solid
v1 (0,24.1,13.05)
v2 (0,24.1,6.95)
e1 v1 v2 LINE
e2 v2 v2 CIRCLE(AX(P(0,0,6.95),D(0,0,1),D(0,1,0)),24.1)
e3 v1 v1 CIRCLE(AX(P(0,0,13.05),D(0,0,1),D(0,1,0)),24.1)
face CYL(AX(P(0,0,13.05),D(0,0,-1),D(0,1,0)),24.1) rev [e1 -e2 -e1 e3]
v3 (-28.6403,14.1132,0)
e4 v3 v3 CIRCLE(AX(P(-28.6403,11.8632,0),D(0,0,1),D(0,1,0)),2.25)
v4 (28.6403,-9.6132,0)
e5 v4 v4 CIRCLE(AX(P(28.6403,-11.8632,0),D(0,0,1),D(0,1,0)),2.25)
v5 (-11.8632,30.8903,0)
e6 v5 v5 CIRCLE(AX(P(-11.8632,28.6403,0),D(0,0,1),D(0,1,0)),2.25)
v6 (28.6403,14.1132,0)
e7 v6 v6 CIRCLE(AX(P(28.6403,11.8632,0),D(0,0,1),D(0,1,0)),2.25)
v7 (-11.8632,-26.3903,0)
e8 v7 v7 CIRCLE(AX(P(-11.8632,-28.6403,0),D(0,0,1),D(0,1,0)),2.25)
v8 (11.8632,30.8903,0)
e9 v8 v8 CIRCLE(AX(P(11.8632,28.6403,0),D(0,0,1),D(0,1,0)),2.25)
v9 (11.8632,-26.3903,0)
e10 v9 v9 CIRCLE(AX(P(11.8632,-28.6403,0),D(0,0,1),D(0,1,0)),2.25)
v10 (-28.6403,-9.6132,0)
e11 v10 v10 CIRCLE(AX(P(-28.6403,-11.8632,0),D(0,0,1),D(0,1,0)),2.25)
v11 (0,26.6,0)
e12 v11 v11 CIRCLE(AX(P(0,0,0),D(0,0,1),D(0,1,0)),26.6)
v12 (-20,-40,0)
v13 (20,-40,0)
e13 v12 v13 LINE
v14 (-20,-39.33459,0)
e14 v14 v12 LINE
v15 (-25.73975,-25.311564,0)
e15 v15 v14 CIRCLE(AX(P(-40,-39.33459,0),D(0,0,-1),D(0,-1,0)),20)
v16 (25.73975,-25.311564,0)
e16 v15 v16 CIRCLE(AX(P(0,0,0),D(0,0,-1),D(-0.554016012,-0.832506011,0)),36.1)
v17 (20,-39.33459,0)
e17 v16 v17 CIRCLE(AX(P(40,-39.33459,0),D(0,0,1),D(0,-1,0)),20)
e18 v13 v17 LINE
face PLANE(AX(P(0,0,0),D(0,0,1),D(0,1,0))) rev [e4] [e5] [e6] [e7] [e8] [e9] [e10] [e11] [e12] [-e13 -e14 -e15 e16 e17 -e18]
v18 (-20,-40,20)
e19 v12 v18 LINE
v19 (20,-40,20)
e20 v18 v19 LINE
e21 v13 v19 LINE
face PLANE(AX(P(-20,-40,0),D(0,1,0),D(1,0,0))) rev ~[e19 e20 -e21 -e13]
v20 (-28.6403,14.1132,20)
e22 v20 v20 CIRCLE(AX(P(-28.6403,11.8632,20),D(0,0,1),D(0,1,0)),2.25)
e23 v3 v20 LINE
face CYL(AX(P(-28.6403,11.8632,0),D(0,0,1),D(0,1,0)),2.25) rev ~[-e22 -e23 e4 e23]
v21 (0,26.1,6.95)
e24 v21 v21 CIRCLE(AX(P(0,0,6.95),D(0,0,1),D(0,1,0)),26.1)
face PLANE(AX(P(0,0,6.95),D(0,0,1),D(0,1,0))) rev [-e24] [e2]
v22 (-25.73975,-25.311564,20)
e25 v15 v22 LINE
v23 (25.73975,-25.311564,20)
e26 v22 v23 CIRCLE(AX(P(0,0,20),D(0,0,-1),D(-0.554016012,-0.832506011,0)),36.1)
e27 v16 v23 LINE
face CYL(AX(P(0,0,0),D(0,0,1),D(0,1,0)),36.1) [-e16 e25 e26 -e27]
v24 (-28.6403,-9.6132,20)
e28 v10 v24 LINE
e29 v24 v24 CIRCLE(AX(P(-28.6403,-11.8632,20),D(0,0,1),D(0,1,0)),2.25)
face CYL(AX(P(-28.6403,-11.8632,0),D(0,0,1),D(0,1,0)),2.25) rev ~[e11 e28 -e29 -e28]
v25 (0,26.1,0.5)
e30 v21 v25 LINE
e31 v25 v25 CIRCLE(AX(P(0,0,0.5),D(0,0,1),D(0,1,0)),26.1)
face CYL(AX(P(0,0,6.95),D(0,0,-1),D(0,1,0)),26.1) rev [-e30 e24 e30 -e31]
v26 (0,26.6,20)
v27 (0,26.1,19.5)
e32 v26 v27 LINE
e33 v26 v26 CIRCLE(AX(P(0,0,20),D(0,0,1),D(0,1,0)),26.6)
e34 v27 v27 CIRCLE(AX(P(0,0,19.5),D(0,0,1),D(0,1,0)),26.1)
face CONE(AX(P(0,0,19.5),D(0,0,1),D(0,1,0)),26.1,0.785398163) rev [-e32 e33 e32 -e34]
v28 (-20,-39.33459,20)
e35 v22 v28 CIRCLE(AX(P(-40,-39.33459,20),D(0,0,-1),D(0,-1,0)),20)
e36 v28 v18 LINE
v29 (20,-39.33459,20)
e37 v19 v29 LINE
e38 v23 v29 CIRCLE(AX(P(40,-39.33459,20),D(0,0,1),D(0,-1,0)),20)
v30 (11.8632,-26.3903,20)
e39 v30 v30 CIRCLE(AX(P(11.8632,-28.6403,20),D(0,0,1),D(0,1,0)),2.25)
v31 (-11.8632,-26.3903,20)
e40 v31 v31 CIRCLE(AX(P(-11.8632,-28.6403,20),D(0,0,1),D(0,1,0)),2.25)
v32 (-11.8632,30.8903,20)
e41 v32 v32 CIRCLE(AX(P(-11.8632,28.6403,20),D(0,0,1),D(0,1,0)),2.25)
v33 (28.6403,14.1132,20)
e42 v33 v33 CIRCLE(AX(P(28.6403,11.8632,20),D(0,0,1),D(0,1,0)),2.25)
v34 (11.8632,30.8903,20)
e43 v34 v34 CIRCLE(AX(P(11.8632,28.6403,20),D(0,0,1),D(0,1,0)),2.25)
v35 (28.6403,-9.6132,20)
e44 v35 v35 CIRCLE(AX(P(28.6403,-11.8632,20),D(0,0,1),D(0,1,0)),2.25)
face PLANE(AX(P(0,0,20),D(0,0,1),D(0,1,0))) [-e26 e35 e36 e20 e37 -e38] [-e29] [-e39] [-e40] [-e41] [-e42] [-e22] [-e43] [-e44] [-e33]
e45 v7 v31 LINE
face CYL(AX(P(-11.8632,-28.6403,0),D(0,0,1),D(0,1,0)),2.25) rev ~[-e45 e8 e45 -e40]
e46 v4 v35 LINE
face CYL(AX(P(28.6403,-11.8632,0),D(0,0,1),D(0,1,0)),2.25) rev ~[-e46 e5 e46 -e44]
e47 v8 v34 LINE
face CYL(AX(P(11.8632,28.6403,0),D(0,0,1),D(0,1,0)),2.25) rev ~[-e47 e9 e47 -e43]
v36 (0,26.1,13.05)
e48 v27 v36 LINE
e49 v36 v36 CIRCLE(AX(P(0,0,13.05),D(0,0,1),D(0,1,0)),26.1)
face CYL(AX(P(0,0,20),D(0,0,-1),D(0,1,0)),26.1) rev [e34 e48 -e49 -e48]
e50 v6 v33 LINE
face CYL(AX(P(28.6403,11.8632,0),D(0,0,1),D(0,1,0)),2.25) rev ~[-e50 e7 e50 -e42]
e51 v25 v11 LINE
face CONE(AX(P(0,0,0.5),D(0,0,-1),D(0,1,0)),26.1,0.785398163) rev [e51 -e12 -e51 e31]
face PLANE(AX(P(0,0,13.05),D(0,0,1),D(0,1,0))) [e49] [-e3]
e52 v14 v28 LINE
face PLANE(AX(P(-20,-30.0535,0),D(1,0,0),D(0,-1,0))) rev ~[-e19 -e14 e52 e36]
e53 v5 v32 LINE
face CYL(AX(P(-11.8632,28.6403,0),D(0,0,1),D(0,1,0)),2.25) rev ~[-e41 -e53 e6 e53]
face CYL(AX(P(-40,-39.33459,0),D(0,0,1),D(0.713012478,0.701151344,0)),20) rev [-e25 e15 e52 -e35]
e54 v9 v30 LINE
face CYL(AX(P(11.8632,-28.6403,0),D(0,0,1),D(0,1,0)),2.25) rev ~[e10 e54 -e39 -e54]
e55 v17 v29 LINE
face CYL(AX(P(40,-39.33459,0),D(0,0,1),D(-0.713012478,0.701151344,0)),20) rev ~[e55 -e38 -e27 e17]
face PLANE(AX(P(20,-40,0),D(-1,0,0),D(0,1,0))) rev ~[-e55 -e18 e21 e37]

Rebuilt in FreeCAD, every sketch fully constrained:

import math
import FreeCAD as App
import Part
import Sketcher
from FreeCAD import Vector


def edges_at(feature, points):
    """Names of the edges that pass closest to the given points."""
    edges = feature.Shape.Edges
    near = lambda p: min(range(len(edges)), key=lambda i: edges[i].distToShape(Part.Vertex(*p))[0])
    return sorted({f"Edge{near(p) + 1}" for p in points})


def add_polygon(sketch, points):
    """Adds a closed chain of lines whose ends are joined by coincident constraints."""
    first, n = sketch.GeometryCount, len(points)
    for a, b in zip(points, points[1:] + points[:1]):
        sketch.addGeometry(Part.LineSegment(App.Vector(*a, 0), App.Vector(*b, 0)), False)
    for i in range(n):
        sketch.addConstraint(Sketcher.Constraint("Coincident", first + i, 2, first + (i + 1) % n, 1))

doc = App.newDocument("Part")
params = doc.addObject("Spreadsheet::Sheet", "Params")
for row, (alias, value) in enumerate([
    ("sketch1_width", "10 mm"),
    ("sketch1_width2", "2 mm"),
    ("sketch1_height", "20 mm"),
    ("sketch1_height2", "6.95 mm"),
    ("revolution_angle", "360 deg"),
    ("sketch2_diameter", "4.5 mm"),
    ("hole_diameter", "4.5 mm"),
    ("chamfer_size", "0.5 mm"),
    ("sketch3_width", "40 mm"),
    ("sketch3_radius", "36.1 mm"),
    ("pad1_length", "20 mm"),
    ("fillet_radius", "20 mm"),
], start=1):
    params.set(f"A{row}", alias)
    params.set(f"B{row}", "=" + value)
    params.setAlias(f"B{row}", alias)

body = doc.addObject("PartDesign::Body", "Body")

sketch1 = body.newObject("Sketcher::SketchObject", "Sketch")
sketch1.AttachmentSupport = (doc.getObject("YZ_Plane"), [""])
sketch1.MapMode = "FlatFace"
add_polygon(sketch1, [(26.1, 7), (26.1, 0), (36.1, 0), (36.1, 20), (26.1, 20), (26.1, 13.1), (24.1, 13.1), (24.1, 7)])
sketch1.addConstraint([
    Sketcher.Constraint("Vertical", 0),
    Sketcher.Constraint("Horizontal", 1),
    Sketcher.Constraint("Vertical", 2),
    Sketcher.Constraint("Horizontal", 3),
    Sketcher.Constraint("Vertical", 4),
    Sketcher.Constraint("Horizontal", 5),
    Sketcher.Constraint("Vertical", 6),
    Sketcher.Constraint("Horizontal", 7),
    Sketcher.Constraint("PointOnObject", 0, 2, -1),
    Sketcher.Constraint("Vertical", 0, 2, 3, 2),
    Sketcher.Constraint("Equal", 0, 4),
    Sketcher.Constraint("DistanceX", 1, 1, 1, 2, 10.0),
    Sketcher.Constraint("DistanceX", 5, 2, 5, 1, 2.0),
    Sketcher.Constraint("DistanceY", 2, 1, 2, 2, 20.0),
    Sketcher.Constraint("DistanceY", 0, 2, 0, 1, 6.95),
    Sketcher.Constraint("DistanceX", -1, 1, 0, 2, 26.1),
])
sketch1.setExpression("Constraints[19]", "Params.sketch1_width")
sketch1.setExpression("Constraints[20]", "Params.sketch1_width2")
sketch1.setExpression("Constraints[21]", "Params.sketch1_height")
sketch1.setExpression("Constraints[22]", "Params.sketch1_height2")
revolution = body.newObject("PartDesign::Revolution", "Revolution")
revolution.Profile = sketch1
revolution.ReferenceAxis = (sketch1, ["V_Axis"])
revolution.setExpression("Angle", "Params.revolution_angle")

sketch2 = body.newObject("Sketcher::SketchObject", "Sketch001")
sketch2.AttachmentSupport = (doc.getObject("XY_Plane"), [""])
sketch2.MapMode = "FlatFace"
sketch2.addGeometry([
    Part.Circle(Vector(11.9, 28.6, 0), Vector(0, 0, 1), 2.2),
    Part.Circle(Vector(28.6, 11.9, 0), Vector(0, 0, 1), 2.2),
    Part.Circle(Vector(28.6, -11.9, 0), Vector(0, 0, 1), 2.2),
    Part.Circle(Vector(11.9, -28.6, 0), Vector(0, 0, 1), 2.2),
    Part.Circle(Vector(-11.9, -28.6, 0), Vector(0, 0, 1), 2.2),
    Part.Circle(Vector(-28.6, -11.9, 0), Vector(0, 0, 1), 2.2),
    Part.Circle(Vector(-28.6, 11.9, 0), Vector(0, 0, 1), 2.2),
    Part.Circle(Vector(-11.9, 28.6, 0), Vector(0, 0, 1), 2.2),
], False)
sketch2.addConstraint([
    Sketcher.Constraint("Equal", 0, 1),
    Sketcher.Constraint("Equal", 1, 2),
    Sketcher.Constraint("Equal", 2, 3),
    Sketcher.Constraint("Equal", 3, 4),
    Sketcher.Constraint("Equal", 4, 5),
    Sketcher.Constraint("Equal", 5, 6),
    Sketcher.Constraint("Equal", 6, 7),
    Sketcher.Constraint("Symmetric", 0, 3, 4, 3, -1, 1),
    Sketcher.Constraint("Symmetric", 1, 3, 5, 3, -1, 1),
    Sketcher.Constraint("Symmetric", 2, 3, 6, 3, -1, 1),
    Sketcher.Constraint("Symmetric", 3, 3, 7, 3, -1, 1),
    Sketcher.Constraint("Symmetric", 3, 3, 4, 3, -2),
    Sketcher.Constraint("Symmetric", 2, 3, 5, 3, -2),
    Sketcher.Constraint("Diameter", 0, 4.5),
    Sketcher.Constraint("DistanceX", 0, 3, 1, 3, 16.777),
    Sketcher.Constraint("DistanceY", 1, 3, 0, 3, 16.777),
    Sketcher.Constraint("DistanceX", -1, 1, 0, 3, 11.8632),
    Sketcher.Constraint("DistanceY", -1, 1, 0, 3, 28.6403),
])
sketch2.setExpression("Constraints[13]", "Params.sketch2_diameter")
doc.recompute()
hole = body.newObject("PartDesign::Hole", "Hole")
hole.Profile = sketch2
hole.ThreadType = "None"
hole.setExpression("Diameter", "Params.hole_diameter")
hole.DepthType = "ThroughAll"
hole.Reversed = True
doc.recompute()

chamfer = body.newObject("PartDesign::Chamfer", "Chamfer")
chamfer.Base = (hole, edges_at(hole, [(0, -26.1, 20), (0, -26.1, 0)]))
chamfer.setExpression("Size", "Params.chamfer_size")

sketch3 = body.newObject("Sketcher::SketchObject", "Sketch002")
sketch3.AttachmentSupport = (doc.getObject("XY_Plane"), [""])
sketch3.MapMode = "FlatFace"
sketch3.addGeometry([
    Part.ArcOfCircle(Part.Circle(Vector(0, 0, 0), Vector(0, 0, 1), 36), math.radians(-124), math.radians(-56)),
    Part.LineSegment(Vector(20, -30, 0), Vector(20, -40, 0)),
    Part.LineSegment(Vector(20, -40, 0), Vector(-20, -40, 0)),
    Part.LineSegment(Vector(-20, -40, 0), Vector(-20, -30, 0)),
], False)
sketch3.addConstraint([
    Sketcher.Constraint("Coincident", 0, 2, 1, 1),
    Sketcher.Constraint("Coincident", 1, 2, 2, 1),
    Sketcher.Constraint("Coincident", 2, 2, 3, 1),
    Sketcher.Constraint("Coincident", 3, 2, 0, 1),
    Sketcher.Constraint("Vertical", 1),
    Sketcher.Constraint("Horizontal", 2),
    Sketcher.Constraint("Vertical", 3),
    Sketcher.Constraint("Coincident", 0, 3, -1, 1),
    Sketcher.Constraint("Horizontal", 0, 2, 3, 2),
    Sketcher.Constraint("DistanceX", 2, 2, 2, 1, 40.0),
    Sketcher.Constraint("DistanceY", 1, 2, -1, 1, 40.0),
    Sketcher.Constraint("Radius", 0, 36.1),
])
sketch3.setExpression("Constraints[9]", "Params.sketch3_width")
sketch3.setExpression("Constraints[11]", "Params.sketch3_radius")
pad1 = body.newObject("PartDesign::Pad", "Pad")
pad1.Profile = sketch3
pad1.setExpression("Length", "Params.pad1_length")
doc.recompute()

fillet = body.newObject("PartDesign::Fillet", "Fillet")
fillet.Base = (pad1, edges_at(pad1, [(20, -30.053, 10), (-20, -30.053, 10)]))
fillet.setExpression("Radius", "Params.fillet_radius")

doc.recompute()
